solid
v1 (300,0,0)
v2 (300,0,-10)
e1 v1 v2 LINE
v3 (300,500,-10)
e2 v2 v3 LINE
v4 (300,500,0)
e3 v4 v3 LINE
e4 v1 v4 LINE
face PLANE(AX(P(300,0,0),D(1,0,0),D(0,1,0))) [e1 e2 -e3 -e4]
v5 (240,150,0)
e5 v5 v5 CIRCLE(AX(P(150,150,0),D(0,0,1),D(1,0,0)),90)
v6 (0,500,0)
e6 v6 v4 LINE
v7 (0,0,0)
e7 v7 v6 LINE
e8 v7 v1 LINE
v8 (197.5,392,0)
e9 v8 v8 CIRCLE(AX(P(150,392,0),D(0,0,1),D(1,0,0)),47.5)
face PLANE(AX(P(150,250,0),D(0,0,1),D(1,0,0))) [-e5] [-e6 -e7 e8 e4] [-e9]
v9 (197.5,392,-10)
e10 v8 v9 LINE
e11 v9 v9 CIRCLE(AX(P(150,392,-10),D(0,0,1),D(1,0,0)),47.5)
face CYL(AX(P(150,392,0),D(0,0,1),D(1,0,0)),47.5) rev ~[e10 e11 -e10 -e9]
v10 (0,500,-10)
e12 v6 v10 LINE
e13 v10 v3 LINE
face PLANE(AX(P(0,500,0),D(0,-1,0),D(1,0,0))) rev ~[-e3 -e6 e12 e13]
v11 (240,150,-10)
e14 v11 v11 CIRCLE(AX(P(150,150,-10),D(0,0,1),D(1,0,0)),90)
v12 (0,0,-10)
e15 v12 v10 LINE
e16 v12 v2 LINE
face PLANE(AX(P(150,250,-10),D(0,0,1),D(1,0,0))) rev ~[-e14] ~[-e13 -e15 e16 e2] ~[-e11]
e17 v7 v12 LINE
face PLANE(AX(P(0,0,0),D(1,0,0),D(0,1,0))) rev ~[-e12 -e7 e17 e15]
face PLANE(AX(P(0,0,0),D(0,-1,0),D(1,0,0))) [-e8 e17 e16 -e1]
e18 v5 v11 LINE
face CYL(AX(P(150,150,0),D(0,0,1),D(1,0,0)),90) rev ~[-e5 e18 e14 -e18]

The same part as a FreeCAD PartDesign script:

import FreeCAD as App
import Part
import Sketcher

V = App.Vector
Q = App.Units.Quantity

doc = App.newDocument("Part")
body = doc.addObject("PartDesign::Body", "Body")

# Sketch on XY plane
sketch1 = body.newObject("Sketcher::SketchObject", "Sketch")
sketch1.AttachmentSupport = (doc.getObject("XY_Plane"), [""])
sketch1.MapMode = "FlatFace"
sketch1.addGeometry([
    Part.LineSegment(V(0, 500, 0), V(0, 0, 0)),  # 0
    Part.LineSegment(V(0, 0, 0), V(300, 0, 0)),  # 1
    Part.LineSegment(V(300, 0, 0), V(300, 500, 0)),  # 2
    Part.LineSegment(V(300, 500, 0), V(0, 500, 0)),  # 3
    Part.Circle(V(150, 150, 0), V(0, 0, 1), 90),  # 4
    Part.Circle(V(150, 392, 0), V(0, 0, 1), 48),  # 5
], False)
sketch1.addConstraint([
    Sketcher.Constraint("Coincident", 0, 2, 1, 1),
    Sketcher.Constraint("Coincident", 1, 2, 2, 1),
    Sketcher.Constraint("Coincident", 2, 2, 3, 1),
    Sketcher.Constraint("Coincident", 3, 2, 0, 1),
    Sketcher.Constraint("Vertical", 0),
    Sketcher.Constraint("Horizontal", 1),
    Sketcher.Constraint("Vertical", 2),
    Sketcher.Constraint("Horizontal", 3),
    Sketcher.Constraint("Coincident", 0, 2, -1, 1),
    Sketcher.Constraint("Vertical", 4, 3, 5, 3),
    Sketcher.Constraint("Diameter", 4, Q("180 mm")),
    Sketcher.Constraint("Diameter", 5, Q("95 mm")),
    Sketcher.Constraint("DistanceX", 1, 1, 1, 2, Q("300 mm")),
    Sketcher.Constraint("DistanceY", 0, 2, 0, 1, Q("500 mm")),
    Sketcher.Constraint("DistanceX", -1, 1, 4, 3, Q("150 mm")),
    Sketcher.Constraint("DistanceY", -1, 1, 4, 3, Q("150 mm")),
    Sketcher.Constraint("DistanceY", -1, 1, 5, 3, Q("392 mm")),
])
pad1 = body.newObject("PartDesign::Pad", "Pad")
pad1.Profile = sketch1
pad1.Length = 10
pad1.Reversed = True

doc.recompute()
